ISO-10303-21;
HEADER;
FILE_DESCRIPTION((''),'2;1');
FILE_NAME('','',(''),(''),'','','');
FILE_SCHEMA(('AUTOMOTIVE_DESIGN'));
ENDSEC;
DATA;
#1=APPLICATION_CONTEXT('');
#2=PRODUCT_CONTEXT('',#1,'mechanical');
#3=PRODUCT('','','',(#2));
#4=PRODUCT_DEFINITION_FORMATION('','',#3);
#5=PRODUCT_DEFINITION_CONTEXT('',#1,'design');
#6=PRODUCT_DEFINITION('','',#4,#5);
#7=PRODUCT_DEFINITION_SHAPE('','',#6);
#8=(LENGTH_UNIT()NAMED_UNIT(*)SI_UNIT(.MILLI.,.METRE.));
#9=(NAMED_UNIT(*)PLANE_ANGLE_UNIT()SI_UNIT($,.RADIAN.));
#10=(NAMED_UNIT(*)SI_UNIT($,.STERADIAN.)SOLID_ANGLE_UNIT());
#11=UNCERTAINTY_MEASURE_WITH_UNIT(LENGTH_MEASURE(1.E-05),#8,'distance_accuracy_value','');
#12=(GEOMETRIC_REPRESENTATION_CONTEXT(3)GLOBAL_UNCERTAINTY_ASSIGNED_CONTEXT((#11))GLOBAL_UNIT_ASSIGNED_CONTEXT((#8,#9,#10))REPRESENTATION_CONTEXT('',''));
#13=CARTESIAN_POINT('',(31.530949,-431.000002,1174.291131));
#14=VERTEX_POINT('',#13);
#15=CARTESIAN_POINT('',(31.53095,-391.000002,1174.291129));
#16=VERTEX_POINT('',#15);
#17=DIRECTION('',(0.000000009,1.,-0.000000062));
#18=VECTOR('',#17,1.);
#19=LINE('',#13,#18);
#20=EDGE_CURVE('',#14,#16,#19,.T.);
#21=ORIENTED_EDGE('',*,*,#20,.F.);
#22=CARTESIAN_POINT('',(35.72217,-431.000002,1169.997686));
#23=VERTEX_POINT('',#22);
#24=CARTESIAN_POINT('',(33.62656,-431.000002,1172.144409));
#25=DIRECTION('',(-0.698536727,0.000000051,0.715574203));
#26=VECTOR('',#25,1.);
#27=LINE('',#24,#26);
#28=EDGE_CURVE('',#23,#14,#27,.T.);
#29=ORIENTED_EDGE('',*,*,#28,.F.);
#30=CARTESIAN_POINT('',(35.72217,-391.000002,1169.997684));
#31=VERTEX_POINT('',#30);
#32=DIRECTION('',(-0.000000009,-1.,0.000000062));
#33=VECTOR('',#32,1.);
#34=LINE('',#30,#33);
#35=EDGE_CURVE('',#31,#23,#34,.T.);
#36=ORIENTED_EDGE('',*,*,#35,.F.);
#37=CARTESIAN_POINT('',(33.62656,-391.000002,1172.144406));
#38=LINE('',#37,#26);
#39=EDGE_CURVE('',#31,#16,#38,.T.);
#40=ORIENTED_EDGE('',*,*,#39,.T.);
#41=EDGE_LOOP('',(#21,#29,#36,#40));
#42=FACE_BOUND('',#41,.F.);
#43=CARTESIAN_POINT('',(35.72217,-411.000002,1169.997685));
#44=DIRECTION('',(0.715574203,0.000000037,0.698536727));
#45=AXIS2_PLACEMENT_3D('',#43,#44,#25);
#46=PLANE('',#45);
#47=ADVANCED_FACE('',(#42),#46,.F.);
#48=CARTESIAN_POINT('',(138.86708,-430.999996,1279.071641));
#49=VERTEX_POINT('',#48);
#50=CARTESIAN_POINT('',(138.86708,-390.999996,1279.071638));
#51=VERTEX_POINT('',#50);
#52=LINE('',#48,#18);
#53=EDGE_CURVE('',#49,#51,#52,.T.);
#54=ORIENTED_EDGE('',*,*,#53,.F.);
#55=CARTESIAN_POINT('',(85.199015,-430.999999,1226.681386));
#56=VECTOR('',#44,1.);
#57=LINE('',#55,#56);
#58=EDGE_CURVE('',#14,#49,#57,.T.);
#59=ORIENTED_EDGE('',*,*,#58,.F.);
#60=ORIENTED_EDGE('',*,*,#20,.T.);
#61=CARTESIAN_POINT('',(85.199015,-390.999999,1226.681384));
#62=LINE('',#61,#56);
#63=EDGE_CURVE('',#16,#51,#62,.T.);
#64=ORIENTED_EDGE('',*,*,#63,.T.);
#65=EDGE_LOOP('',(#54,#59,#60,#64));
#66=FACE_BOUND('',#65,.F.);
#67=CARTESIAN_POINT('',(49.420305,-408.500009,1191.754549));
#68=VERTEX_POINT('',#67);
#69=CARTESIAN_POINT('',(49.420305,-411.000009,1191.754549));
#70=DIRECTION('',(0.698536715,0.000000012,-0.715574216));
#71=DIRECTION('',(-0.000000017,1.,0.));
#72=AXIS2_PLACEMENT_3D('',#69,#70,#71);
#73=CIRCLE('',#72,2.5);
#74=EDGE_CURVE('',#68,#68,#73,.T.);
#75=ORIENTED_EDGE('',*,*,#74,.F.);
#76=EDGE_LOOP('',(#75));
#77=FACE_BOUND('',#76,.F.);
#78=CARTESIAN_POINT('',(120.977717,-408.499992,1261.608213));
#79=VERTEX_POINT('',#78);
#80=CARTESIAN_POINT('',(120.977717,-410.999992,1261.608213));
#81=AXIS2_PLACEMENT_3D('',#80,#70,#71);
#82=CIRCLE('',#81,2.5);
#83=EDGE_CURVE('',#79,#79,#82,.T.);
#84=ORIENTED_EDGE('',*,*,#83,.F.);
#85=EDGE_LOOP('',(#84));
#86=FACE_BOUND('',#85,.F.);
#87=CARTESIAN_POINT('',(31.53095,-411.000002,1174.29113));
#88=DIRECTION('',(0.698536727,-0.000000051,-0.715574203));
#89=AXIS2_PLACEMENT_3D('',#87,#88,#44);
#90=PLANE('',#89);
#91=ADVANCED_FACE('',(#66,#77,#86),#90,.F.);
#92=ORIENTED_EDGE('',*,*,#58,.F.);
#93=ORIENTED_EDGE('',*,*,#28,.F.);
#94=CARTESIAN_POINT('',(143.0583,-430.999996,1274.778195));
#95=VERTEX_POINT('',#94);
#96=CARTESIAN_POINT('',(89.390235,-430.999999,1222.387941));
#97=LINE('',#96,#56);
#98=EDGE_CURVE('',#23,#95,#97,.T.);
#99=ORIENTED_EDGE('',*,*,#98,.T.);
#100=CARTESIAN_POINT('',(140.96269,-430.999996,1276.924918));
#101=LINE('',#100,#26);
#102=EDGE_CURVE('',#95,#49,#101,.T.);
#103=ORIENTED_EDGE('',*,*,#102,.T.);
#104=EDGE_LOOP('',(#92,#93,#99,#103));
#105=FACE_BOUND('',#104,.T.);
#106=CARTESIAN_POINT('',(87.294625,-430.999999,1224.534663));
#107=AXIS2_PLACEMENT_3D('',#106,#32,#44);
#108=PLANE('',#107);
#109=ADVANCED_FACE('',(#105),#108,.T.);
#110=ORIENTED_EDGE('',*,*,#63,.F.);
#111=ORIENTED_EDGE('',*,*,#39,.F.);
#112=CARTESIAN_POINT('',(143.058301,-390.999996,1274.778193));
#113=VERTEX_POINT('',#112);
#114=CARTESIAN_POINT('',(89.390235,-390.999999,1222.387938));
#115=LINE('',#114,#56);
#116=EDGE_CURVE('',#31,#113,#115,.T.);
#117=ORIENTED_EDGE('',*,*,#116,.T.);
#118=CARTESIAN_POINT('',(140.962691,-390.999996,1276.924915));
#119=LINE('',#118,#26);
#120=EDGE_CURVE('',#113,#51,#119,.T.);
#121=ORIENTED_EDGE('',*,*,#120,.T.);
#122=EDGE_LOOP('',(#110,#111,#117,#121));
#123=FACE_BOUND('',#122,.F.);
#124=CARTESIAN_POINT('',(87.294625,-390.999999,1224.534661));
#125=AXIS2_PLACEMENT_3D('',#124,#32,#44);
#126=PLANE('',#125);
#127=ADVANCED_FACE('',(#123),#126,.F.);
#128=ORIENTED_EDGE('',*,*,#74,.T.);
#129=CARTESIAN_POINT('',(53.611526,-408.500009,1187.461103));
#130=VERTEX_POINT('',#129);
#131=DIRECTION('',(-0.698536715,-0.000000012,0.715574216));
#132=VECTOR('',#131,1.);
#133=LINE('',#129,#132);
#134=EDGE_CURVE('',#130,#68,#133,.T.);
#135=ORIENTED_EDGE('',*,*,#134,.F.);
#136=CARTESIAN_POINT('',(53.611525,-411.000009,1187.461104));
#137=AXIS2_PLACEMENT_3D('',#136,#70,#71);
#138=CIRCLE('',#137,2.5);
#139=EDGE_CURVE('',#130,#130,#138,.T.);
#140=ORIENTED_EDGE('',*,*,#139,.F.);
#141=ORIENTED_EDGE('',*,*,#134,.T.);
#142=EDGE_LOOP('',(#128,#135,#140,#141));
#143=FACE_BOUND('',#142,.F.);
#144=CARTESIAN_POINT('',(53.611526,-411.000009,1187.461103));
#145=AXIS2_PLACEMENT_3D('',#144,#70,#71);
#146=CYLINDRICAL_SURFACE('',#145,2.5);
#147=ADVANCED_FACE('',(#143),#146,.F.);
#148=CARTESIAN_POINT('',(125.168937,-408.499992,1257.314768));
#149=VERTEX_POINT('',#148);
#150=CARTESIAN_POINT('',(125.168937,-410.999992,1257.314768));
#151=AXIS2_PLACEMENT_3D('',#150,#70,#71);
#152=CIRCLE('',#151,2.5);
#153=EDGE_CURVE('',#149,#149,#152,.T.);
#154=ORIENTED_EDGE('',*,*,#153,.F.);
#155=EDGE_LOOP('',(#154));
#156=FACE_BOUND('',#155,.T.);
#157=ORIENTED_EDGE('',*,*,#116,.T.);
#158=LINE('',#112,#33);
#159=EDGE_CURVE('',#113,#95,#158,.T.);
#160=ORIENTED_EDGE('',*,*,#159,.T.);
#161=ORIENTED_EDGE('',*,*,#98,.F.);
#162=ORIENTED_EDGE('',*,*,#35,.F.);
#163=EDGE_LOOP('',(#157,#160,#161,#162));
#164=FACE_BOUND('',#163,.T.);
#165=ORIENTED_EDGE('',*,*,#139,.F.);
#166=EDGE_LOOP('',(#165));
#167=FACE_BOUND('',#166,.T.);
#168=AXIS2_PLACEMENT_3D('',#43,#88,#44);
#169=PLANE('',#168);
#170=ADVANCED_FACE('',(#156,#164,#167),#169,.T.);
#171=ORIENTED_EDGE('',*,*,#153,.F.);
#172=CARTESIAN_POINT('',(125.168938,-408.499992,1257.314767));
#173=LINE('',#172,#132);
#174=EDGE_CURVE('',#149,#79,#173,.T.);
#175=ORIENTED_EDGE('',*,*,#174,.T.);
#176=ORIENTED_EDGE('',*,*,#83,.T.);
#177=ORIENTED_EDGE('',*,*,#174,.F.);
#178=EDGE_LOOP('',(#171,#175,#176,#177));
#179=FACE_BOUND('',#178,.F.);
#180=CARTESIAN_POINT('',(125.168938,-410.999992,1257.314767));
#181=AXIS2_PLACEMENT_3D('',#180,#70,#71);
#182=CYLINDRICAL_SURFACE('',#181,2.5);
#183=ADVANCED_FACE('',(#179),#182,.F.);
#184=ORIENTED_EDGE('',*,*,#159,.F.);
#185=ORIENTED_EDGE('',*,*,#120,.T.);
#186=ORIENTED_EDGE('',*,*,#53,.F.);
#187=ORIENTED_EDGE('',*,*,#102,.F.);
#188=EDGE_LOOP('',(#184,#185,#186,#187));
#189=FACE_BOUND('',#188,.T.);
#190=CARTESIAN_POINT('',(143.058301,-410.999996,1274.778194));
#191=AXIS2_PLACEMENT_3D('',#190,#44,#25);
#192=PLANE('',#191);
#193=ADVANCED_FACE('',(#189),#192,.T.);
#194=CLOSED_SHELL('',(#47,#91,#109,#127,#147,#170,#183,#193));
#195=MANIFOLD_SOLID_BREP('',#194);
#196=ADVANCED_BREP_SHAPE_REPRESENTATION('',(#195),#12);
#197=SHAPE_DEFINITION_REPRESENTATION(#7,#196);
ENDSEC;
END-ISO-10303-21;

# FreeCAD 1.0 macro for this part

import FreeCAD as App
import Part
import Sketcher
from FreeCAD import Vector
Q = App.Units.Quantity

doc = App.newDocument("Part")
body = doc.addObject("PartDesign::Body", "Body")

# Sketch on XY plane
sketch1 = body.newObject("Sketcher::SketchObject", "Sketch")
sketch1.AttachmentSupport = (doc.getObject("XY_Plane"), [""])
sketch1.MapMode = "FlatFace"
sketch1.addGeometry(Part.Circle(Vector(0, 0, 0), Vector(0, 0, 1), 2.5), False)
sketch1.addConstraint([
    Sketcher.Constraint("Coincident", 0, 3, -1, 1),
    Sketcher.Constraint("Diameter", 0, Q("5 mm")),
])
pad1 = body.newObject("PartDesign::Pad", "Pad")
pad1.Profile = sketch1
pad1.Length = 10
pad1.Reversed = True
body2 = doc.addObject("PartDesign::Body", "Body001")
doc.recompute()

body.Placement = App.Placement(Vector(0, 0, 0), App.Rotation(Vector(1, 0, 0), 135.690278))
boolean = body2.newObject("PartDesign::Boolean", "Boolean")
boolean.Type = "Fuse"
boolean.addObjects([body])
body3 = doc.addObject("PartDesign::Body", "Body002")
doc.recompute()

body2.Placement = App.Placement(Vector(0, 0, 0), App.Rotation(Vector(0, 0, 1), 0))
boolean2 = body3.newObject("PartDesign::Boolean", "Boolean001")
boolean2.Type = "Fuse"
boolean2.addObjects([body2])
body4 = doc.addObject("PartDesign::Body", "Body003")
doc.recompute()

body3.Placement = App.Placement(Vector(53.611526, -9.999937, 1187.461103), App.Rotation(Vector(0, 0, 1), 90.000001))
boolean3 = body4.newObject("PartDesign::Boolean", "Boolean002")
boolean3.Type = "Fuse"
boolean3.addObjects([body3])
body5 = doc.addObject("PartDesign::Body", "Body004")

# Sketch on XY plane
sketch2 = body5.newObject("Sketcher::SketchObject", "Sketch001")
sketch2.AttachmentSupport = (doc.getObject("XY_Plane004"), [""])
sketch2.MapMode = "FlatFace"
sketch2.addGeometry(Part.Circle(Vector(0, 0, 0), Vector(0, 0, 1), 2.5), False)
sketch2.addConstraint([
    Sketcher.Constraint("Coincident", 0, 3, -1, 1),
    Sketcher.Constraint("Diameter", 0, Q("5 mm")),
])
pad2 = body5.newObject("PartDesign::Pad", "Pad001")
pad2.Profile = sketch2
pad2.Length = 10
pad2.Reversed = True
body6 = doc.addObject("PartDesign::Body", "Body005")
doc.recompute()

body5.Placement = App.Placement(Vector(0, 0, 0), App.Rotation(Vector(1, 0, 0), 135.690278))
boolean4 = body6.newObject("PartDesign::Boolean", "Boolean003")
boolean4.Type = "Fuse"
boolean4.addObjects([body5])
body7 = doc.addObject("PartDesign::Body", "Body006")
doc.recompute()

body6.Placement = App.Placement(Vector(0, 0, 0), App.Rotation(Vector(0, 0, 1), 0))
boolean5 = body7.newObject("PartDesign::Boolean", "Boolean004")
boolean5.Type = "Fuse"
boolean5.addObjects([body6])
body8 = doc.addObject("PartDesign::Body", "Body007")
body8.AllowCompound = True
doc.recompute()

body7.Placement = App.Placement(Vector(125.168938, -9.99992, 1257.314767), App.Rotation(Vector(0, 0, 1), 90.000001))
boolean6 = body8.newObject("PartDesign::Boolean", "Boolean005")
boolean6.Type = "Fuse"
boolean6.addObjects([body7])
doc.recompute()

boolean7 = body8.newObject("PartDesign::Boolean", "Boolean006")
boolean7.Type = "Fuse"
boolean7.addObjects([body4])
body9 = doc.addObject("PartDesign::Body", "Body008")
body9.AllowCompound = True
doc.recompute()

body8.Placement = App.Placement(Vector(0, -401.000072, 0), App.Rotation(Vector(0, 0, 1), 0))
boolean8 = body9.newObject("PartDesign::Boolean", "Boolean007")
boolean8.Type = "Fuse"
boolean8.addObjects([body8])
body10 = doc.addObject("PartDesign::Body", "Body009")

# Sketch on XY plane
sketch3 = body10.newObject("Sketcher::SketchObject", "Sketch002")
sketch3.AttachmentSupport = (doc.getObject("XY_Plane009"), [""])
sketch3.MapMode = "FlatFace"
sketch3.addGeometry([
    Part.LineSegment(Vector(0, 6, 0), Vector(0, 0, 0)),
    Part.LineSegment(Vector(0, 0, 0), Vector(150, 0, 0)),
    Part.LineSegment(Vector(150, 0, 0), Vector(150, 6, 0)),
    Part.LineSegment(Vector(150, 6, 0), Vector(0, 6, 0)),
], False)
sketch3.addConstraint([
    Sketcher.Constraint("Coincident", 0, 2, 1, 1),
    Sketcher.Constraint("Coincident", 1, 2, 2, 1),
    Sketcher.Constraint("Coincident", 2, 2, 3, 1),
    Sketcher.Constraint("Coincident", 3, 2, 0, 1),
    Sketcher.Constraint("Vertical", 0),
    Sketcher.Constraint("Horizontal", 1),
    Sketcher.Constraint("Vertical", 2),
    Sketcher.Constraint("Horizontal", 3),
    Sketcher.Constraint("Coincident", 0, 2, -1, 1),
    Sketcher.Constraint("DistanceX", 1, 1, 1, 2, Q("150 mm")),
    Sketcher.Constraint("DistanceY", 0, 2, 0, 1, Q("6 mm")),
])
pad3 = body10.newObject("PartDesign::Pad", "Pad002")
pad3.Profile = sketch3
pad3.Length = 40
pad3.Midplane = True
body11 = doc.addObject("PartDesign::Body", "Body010")
doc.recompute()

body10.Placement = App.Placement(Vector(0, 0, 0), App.Rotation(Vector(1, 0, 0), 89.999995))
boolean9 = body11.newObject("PartDesign::Boolean", "Boolean008")
boolean9.Type = "Fuse"
boolean9.addObjects([body10])
body12 = doc.addObject("PartDesign::Body", "Body011")
doc.recompute()

body11.Placement = App.Placement(Vector(0, 0, 0), App.Rotation(Vector(0, 1, 0), 315.690277))
boolean10 = body12.newObject("PartDesign::Boolean", "Boolean009")
boolean10.Type = "Fuse"
boolean10.addObjects([body11])
body13 = doc.addObject("PartDesign::Body", "Body012")
doc.recompute()

body12.Placement = App.Placement(Vector(35.72217, -9.99993, 1169.997685), App.Rotation(Vector(0, 0, 1), 0.000003))
boolean11 = body13.newObject("PartDesign::Boolean", "Boolean010")
boolean11.Type = "Fuse"
boolean11.addObjects([body12])
body14 = doc.addObject("PartDesign::Body", "Body013")
doc.recompute()

body13.Placement = App.Placement(Vector(0, -401.000072, 0), App.Rotation(Vector(0, 0, 1), 0))
boolean12 = body14.newObject("PartDesign::Boolean", "Boolean011")
boolean12.Type = "Fuse"
boolean12.addObjects([body13])
doc.recompute()

boolean13 = body14.newObject("PartDesign::Boolean", "Boolean012")
boolean13.Type = "Cut"
boolean13.addObjects([body9])

doc.recompute()
